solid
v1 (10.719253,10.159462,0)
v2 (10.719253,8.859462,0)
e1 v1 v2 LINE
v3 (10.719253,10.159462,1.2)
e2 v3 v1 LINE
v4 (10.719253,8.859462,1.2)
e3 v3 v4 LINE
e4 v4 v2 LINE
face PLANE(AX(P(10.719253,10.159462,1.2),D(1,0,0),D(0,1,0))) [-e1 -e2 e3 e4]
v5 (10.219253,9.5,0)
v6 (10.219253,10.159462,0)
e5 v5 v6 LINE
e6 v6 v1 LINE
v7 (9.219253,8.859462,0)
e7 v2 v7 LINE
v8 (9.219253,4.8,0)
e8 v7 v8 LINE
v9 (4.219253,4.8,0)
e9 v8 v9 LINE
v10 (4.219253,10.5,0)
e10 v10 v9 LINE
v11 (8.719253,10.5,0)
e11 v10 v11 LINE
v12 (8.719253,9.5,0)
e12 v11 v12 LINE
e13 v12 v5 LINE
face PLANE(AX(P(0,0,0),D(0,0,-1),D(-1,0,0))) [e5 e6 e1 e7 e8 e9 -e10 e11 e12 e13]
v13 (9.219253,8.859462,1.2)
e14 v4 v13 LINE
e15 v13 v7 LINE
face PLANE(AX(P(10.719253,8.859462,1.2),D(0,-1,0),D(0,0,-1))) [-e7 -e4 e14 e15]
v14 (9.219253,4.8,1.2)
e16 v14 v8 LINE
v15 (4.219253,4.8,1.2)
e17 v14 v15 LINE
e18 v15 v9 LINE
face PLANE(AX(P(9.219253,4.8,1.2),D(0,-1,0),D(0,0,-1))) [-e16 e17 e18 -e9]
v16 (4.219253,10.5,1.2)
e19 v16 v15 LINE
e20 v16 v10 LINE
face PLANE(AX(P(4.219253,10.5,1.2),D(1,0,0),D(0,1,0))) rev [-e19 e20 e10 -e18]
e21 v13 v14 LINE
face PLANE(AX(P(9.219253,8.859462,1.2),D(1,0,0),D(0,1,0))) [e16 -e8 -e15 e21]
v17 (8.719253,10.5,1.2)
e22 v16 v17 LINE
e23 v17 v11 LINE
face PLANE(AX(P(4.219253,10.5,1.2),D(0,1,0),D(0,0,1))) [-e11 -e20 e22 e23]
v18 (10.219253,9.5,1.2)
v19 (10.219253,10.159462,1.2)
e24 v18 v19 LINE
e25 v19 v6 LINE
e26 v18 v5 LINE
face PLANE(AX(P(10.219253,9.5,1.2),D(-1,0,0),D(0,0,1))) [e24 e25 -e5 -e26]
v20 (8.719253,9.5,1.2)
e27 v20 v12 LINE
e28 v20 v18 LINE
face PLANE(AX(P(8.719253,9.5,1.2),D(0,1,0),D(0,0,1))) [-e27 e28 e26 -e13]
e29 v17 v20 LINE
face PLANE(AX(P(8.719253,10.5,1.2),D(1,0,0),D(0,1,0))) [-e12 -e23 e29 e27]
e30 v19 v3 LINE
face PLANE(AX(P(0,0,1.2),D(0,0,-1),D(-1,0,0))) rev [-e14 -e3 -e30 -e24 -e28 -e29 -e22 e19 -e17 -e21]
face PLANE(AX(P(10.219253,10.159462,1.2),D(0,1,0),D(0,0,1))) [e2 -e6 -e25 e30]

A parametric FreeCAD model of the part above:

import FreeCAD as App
import Part
import Sketcher


def add_polygon(sketch, points):
    """Adds a closed chain of lines whose ends are joined by coincident constraints."""
    first, n = sketch.GeometryCount, len(points)
    for a, b in zip(points, points[1:] + points[:1]):
        sketch.addGeometry(Part.LineSegment(App.Vector(*a, 0), App.Vector(*b, 0)), False)
    for i in range(n):
        sketch.addConstraint(Sketcher.Constraint("Coincident", first + i, 2, first + (i + 1) % n, 1))

doc = App.newDocument("Part")
body = doc.addObject("PartDesign::Body", "Body")

# Sketch on XY plane
sketch1 = body.newObject("Sketcher::SketchObject", "Sketch")
sketch1.AttachmentSupport = (doc.getObject("XY_Plane"), [""])
sketch1.MapMode = "FlatFace"
add_polygon(sketch1, [(4.2, 10.5), (4.2, 4.8), (9.2, 4.8), (9.2, 8.9), (10.7, 8.9), (10.7, 10.2), (10.2, 10.2), (10.2, 9.5), (8.7, 9.5), (8.7, 10.5)])  # lines 0-9
sketch1.addConstraint([
    Sketcher.Constraint("Vertical", 0),
    Sketcher.Constraint("Horizontal", 1),
    Sketcher.Constraint("Vertical", 2),
    Sketcher.Constraint("Horizontal", 3),
    Sketcher.Constraint("Vertical", 4),
    Sketcher.Constraint("Horizontal", 5),
    Sketcher.Constraint("Vertical", 6),
    Sketcher.Constraint("Horizontal", 7),
    Sketcher.Constraint("Vertical", 8),
    Sketcher.Constraint("Horizontal", 9),
    Sketcher.Constraint("Equal", 3, 7),
    Sketcher.Constraint("DistanceX", 1, 1, 1, 2, 5.0),
    Sketcher.Constraint("DistanceY", 8, 1, 8, 2, 1.0),
    Sketcher.Constraint("DistanceX", 3, 1, 3, 2, 1.5),
    Sketcher.Constraint("DistanceX", 5, 2, 5, 1, 0.5),
    Sketcher.Constraint("DistanceY", 0, 2, 0, 1, 5.7),
    Sketcher.Constraint("DistanceY", 4, 1, 4, 2, 1.3),
    Sketcher.Constraint("DistanceY", -1, 1, 0, 2, 4.8),
    Sketcher.Constraint("DistanceY", 2, 1, 2, 2, 4.059462),
    Sketcher.Constraint("DistanceX", -1, 1, 0, 2, 4.219253),
])
pad1 = body.newObject("PartDesign::Pad", "Pad")
pad1.Profile = sketch1
pad1.Length = 1.2

doc.recompute()
